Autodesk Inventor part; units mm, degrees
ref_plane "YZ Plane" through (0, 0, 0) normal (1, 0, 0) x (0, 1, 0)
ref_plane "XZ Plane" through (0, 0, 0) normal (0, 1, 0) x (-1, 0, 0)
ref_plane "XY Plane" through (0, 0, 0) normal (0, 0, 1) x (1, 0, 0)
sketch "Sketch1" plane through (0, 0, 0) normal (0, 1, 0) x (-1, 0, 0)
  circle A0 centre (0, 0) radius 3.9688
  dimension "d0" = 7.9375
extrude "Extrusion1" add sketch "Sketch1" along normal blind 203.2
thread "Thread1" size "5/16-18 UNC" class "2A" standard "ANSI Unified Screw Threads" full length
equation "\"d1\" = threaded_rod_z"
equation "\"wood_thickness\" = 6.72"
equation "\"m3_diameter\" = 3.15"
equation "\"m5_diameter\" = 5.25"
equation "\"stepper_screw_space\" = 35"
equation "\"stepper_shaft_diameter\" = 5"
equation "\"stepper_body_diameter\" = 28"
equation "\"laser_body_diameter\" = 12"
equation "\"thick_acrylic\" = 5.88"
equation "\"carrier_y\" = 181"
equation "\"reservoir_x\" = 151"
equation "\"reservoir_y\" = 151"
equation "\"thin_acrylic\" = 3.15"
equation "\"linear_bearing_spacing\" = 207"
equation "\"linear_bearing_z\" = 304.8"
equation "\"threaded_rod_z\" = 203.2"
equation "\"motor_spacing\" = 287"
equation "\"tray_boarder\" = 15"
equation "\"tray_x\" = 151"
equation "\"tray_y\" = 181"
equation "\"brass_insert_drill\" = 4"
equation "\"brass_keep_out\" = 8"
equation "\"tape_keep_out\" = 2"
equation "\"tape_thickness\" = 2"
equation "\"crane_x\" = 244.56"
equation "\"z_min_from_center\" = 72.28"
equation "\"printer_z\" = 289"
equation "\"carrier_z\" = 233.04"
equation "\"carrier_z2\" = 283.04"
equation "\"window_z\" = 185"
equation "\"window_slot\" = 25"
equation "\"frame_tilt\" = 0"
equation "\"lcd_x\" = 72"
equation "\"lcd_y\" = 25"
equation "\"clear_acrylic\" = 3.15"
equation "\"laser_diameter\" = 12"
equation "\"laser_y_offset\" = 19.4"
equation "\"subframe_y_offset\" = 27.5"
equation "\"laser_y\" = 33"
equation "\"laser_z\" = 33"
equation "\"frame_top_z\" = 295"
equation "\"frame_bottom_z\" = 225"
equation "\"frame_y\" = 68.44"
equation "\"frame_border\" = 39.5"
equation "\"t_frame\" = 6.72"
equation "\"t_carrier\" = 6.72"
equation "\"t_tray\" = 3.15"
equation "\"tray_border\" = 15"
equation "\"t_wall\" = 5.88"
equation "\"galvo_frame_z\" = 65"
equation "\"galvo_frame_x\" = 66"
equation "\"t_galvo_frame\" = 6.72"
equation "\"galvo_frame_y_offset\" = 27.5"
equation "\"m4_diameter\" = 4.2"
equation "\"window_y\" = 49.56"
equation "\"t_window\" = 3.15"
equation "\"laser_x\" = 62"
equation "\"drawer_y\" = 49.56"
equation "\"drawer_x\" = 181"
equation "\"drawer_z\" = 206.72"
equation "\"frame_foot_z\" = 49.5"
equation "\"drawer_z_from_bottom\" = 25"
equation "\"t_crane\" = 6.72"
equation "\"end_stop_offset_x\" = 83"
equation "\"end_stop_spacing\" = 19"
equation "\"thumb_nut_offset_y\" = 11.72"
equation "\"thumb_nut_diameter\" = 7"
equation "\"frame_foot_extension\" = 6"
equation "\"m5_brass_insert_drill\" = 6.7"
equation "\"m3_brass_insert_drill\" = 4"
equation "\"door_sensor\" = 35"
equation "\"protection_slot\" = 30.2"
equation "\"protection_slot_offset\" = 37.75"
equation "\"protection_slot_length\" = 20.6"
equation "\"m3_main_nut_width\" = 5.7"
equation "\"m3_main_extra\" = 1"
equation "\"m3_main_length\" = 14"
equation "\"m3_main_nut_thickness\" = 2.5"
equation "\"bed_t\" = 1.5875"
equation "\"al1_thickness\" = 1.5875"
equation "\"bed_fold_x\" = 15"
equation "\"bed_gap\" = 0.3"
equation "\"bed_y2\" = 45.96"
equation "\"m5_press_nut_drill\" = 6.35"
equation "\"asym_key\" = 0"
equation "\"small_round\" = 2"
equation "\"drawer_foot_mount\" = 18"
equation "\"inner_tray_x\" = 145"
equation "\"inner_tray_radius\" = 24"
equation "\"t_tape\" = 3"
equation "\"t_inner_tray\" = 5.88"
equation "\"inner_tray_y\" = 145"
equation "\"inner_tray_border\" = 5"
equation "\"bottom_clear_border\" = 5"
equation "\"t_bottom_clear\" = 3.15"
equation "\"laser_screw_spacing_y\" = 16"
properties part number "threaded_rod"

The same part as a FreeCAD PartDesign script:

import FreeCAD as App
import Part
import Sketcher
from FreeCAD import Vector
Q = App.Units.Quantity

doc = App.newDocument("Part")
body = doc.addObject("PartDesign::Body", "Body")

# Sketch on XZ plane
sketch1 = body.newObject("Sketcher::SketchObject", "Sketch")
sketch1.AttachmentSupport = (doc.getObject("XZ_Plane"), [""])
sketch1.MapMode = "FlatFace"
sketch1.addGeometry(Part.Circle(Vector(0, 0, 0), Vector(0, 0, 1), 4), False)
sketch1.addConstraint([
    Sketcher.Constraint("Coincident", 0, 3, -1, 1),
    Sketcher.Constraint("Diameter", 0, Q("0.3125 in")),
])
pad1 = body.newObject("PartDesign::Pad", "Pad")
pad1.Profile = sketch1
pad1.Length = Q("8 in")
pad1.Reversed = True

doc.recompute()
